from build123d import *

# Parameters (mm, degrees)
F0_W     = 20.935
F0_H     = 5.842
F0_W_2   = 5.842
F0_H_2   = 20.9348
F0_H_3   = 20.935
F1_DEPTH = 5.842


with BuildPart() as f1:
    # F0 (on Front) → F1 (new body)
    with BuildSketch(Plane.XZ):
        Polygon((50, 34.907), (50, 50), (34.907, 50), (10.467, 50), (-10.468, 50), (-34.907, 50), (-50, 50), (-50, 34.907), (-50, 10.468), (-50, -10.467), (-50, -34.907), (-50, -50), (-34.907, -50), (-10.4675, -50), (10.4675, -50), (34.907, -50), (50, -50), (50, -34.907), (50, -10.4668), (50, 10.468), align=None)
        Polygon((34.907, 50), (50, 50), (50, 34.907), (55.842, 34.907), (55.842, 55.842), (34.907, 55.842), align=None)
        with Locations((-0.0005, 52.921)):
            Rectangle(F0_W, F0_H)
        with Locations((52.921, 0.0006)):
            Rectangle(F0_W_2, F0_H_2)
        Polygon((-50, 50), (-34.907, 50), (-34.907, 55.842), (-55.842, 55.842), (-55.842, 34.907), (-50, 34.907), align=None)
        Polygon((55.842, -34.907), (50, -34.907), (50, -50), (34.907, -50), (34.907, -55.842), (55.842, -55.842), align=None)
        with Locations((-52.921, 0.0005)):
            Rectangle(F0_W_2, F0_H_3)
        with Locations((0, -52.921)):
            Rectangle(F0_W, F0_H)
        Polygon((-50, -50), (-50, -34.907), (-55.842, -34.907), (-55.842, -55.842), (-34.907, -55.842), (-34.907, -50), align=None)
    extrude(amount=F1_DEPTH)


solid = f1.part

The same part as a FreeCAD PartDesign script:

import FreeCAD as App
import Part
import Sketcher
Q = App.Units.Quantity


def add_polygon(sketch, points):
    """Adds a closed chain of lines whose ends are joined by coincident constraints."""
    first, n = sketch.GeometryCount, len(points)
    for a, b in zip(points, points[1:] + points[:1]):
        sketch.addGeometry(Part.LineSegment(App.Vector(*a, 0), App.Vector(*b, 0)), False)
    for i in range(n):
        sketch.addConstraint(Sketcher.Constraint("Coincident", first + i, 2, first + (i + 1) % n, 1))

doc = App.newDocument("Part")
body = doc.addObject("PartDesign::Body", "Body")

# Sketch on XZ plane
sketch1 = body.newObject("Sketcher::SketchObject", "Sketch")
sketch1.AttachmentSupport = (doc.getObject("XZ_Plane"), [""])
sketch1.MapMode = "FlatFace"
add_polygon(sketch1, [(34.907, 50), (10.467, 50), (10.467, 55.842), (-10.468, 55.842), (-10.468, 50), (-34.907, 50), (-34.907, 55.842), (-55.842, 55.842), (-55.842, 34.907), (-50, 34.907), (-50, 10.468), (-55.842, 10.468), (-55.842, -10.467), (-50, -10.467), (-50, -34.907), (-55.842, -34.907), (-55.842, -55.842), (-34.907, -55.842), (-34.907, -50), (-10.4675, -50), (-10.4675, -55.842), (10.4675, -55.842), (10.4675, -50), (34.907, -50), (34.907, -55.842), (55.842, -55.842), (55.842, -34.907), (50, -34.907), (50, -10.4668), (55.842, -10.4668), (55.842, 10.468), (50, 10.468), (50, 34.907), (55.842, 34.907), (55.842, 55.842), (34.907, 55.842)])  # lines 0-35
sketch1.addConstraint([
    Sketcher.Constraint("Horizontal", 0),
    Sketcher.Constraint("Vertical", 1),
    Sketcher.Constraint("Horizontal", 2),
    Sketcher.Constraint("Vertical", 3),
    Sketcher.Constraint("Horizontal", 4),
    Sketcher.Constraint("Vertical", 5),
    Sketcher.Constraint("Horizontal", 6),
    Sketcher.Constraint("Vertical", 7),
    Sketcher.Constraint("Horizontal", 8),
    Sketcher.Constraint("Vertical", 9),
    Sketcher.Constraint("Horizontal", 10),
    Sketcher.Constraint("Vertical", 11),
    Sketcher.Constraint("Horizontal", 12),
    Sketcher.Constraint("Vertical", 13),
    Sketcher.Constraint("Horizontal", 14),
    Sketcher.Constraint("Vertical", 15),
    Sketcher.Constraint("Horizontal", 16),
    Sketcher.Constraint("Vertical", 17),
    Sketcher.Constraint("Horizontal", 18),
    Sketcher.Constraint("Vertical", 19),
    Sketcher.Constraint("Horizontal", 20),
    Sketcher.Constraint("Vertical", 21),
    Sketcher.Constraint("Horizontal", 22),
    Sketcher.Constraint("Vertical", 23),
    Sketcher.Constraint("Horizontal", 24),
    Sketcher.Constraint("Vertical", 25),
    Sketcher.Constraint("Horizontal", 26),
    Sketcher.Constraint("Vertical", 27),
    Sketcher.Constraint("Horizontal", 28),
    Sketcher.Constraint("Vertical", 29),
    Sketcher.Constraint("Horizontal", 30),
    Sketcher.Constraint("Vertical", 31),
    Sketcher.Constraint("Horizontal", 32),
    Sketcher.Constraint("Vertical", 33),
    Sketcher.Constraint("Horizontal", 34),
    Sketcher.Constraint("Vertical", 35),
    Sketcher.Constraint("Symmetric", 4, 2, 22, 2, -1, 1),
    Sketcher.Constraint("Symmetric", 6, 2, 24, 2, -1, 1),
    Sketcher.Constraint("Symmetric", 8, 2, 26, 2, -1, 1),
    Sketcher.Constraint("Symmetric", 13, 2, 31, 2, -1, 1),
    Sketcher.Constraint("Symmetric", 15, 2, 33, 2, -1, 1),
    Sketcher.Constraint("Symmetric", 17, 2, 35, 2, -1, 1),
    Sketcher.Constraint("Symmetric", 18, 2, 21, 2, -2),
    Sketcher.Constraint("Symmetric", 16, 2, 23, 2, -2),
    Sketcher.Constraint("Symmetric", 14, 2, 25, 2, -2),
    Sketcher.Constraint("Symmetric", 10, 2, 29, 2, -2),
    Sketcher.Constraint("Horizontal", 2, 2, 5, 2),
    Sketcher.Constraint("Horizontal", 16, 2, 19, 2),
    Sketcher.Constraint("Vertical", 7, 2, 10, 2),
    Sketcher.Constraint("Vertical", 9, 2, 12, 2),
    Sketcher.Constraint("Equal", 2, 6),
    Sketcher.Constraint("Equal", 16, 20),
    Sketcher.Constraint("Equal", 32, 1),
    Sketcher.Constraint("Equal", 34, 7),
    Sketcher.Constraint("Equal", 4, 9),
    Sketcher.Constraint("Equal", 7, 11),
    Sketcher.Constraint("Equal", 0, 13),
    Sketcher.Constraint("DistanceX", 8, 1, 8, 2, Q("0.23 in")),
    Sketcher.Constraint("DistanceX", 0, 2, 0, 1, Q("24.44 mm")),
    Sketcher.Constraint("DistanceX", 2, 2, 2, 1, Q("20.935 mm")),
    Sketcher.Constraint("DistanceX", 4, 2, 4, 1, Q("24.439 mm")),
    Sketcher.Constraint("DistanceY", 27, 1, 27, 2, Q("24.4402 mm")),
])
pad1 = body.newObject("PartDesign::Pad", "Pad")
pad1.Profile = sketch1
pad1.Length = Q("0.23 in")

doc.recompute()
